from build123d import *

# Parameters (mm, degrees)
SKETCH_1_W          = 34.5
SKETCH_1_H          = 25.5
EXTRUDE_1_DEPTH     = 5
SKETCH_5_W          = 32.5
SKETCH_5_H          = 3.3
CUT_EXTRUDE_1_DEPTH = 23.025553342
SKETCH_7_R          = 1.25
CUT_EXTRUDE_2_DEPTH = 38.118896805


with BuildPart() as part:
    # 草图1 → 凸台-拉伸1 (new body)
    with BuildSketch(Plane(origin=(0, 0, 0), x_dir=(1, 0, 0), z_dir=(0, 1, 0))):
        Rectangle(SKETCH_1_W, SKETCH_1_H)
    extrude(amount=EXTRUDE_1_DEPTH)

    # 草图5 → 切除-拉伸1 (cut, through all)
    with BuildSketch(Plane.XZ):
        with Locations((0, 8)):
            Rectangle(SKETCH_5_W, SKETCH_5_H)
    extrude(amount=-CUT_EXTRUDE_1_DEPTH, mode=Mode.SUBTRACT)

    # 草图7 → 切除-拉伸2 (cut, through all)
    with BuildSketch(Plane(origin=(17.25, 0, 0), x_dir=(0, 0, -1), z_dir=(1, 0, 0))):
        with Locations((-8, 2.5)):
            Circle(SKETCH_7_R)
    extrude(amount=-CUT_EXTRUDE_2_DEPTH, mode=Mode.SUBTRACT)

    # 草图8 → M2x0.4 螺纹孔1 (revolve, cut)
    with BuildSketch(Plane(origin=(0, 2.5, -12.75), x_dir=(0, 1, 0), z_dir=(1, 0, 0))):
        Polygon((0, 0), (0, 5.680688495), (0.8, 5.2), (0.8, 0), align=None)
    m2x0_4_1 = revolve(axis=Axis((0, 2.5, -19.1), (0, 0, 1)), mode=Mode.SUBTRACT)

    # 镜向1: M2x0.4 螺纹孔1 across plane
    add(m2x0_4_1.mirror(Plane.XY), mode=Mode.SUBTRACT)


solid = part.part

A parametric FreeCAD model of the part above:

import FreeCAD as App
import Part
import Sketcher
Q = App.Units.Quantity


def add_polygon(sketch, points):
    """Adds a closed chain of lines whose ends are joined by coincident constraints."""
    first, n = sketch.GeometryCount, len(points)
    for a, b in zip(points, points[1:] + points[:1]):
        sketch.addGeometry(Part.LineSegment(App.Vector(*a, 0), App.Vector(*b, 0)), False)
    for i in range(n):
        sketch.addConstraint(Sketcher.Constraint("Coincident", first + i, 2, first + (i + 1) % n, 1))

doc = App.newDocument("Part")
body = doc.addObject("PartDesign::Body", "Body")

sketch1 = body.newObject("Sketcher::SketchObject", "Sketch")
sketch1.AttachmentSupport = (doc.getObject("XZ_Plane"), [""])
sketch1.MapMode = "FlatFace"
add_polygon(sketch1, [(-17, -13), (-17, 13), (17, 13), (17, -13)])
sketch1.addConstraint(Sketcher.Constraint("Vertical", 0))
sketch1.addConstraint(Sketcher.Constraint("Horizontal", 1))
sketch1.addConstraint(Sketcher.Constraint("Vertical", 2))
sketch1.addConstraint(Sketcher.Constraint("Horizontal", 3))
sketch1.addConstraint(Sketcher.Constraint("Symmetric", 0, 2, 2, 2, -1, 1))
sketch1.addConstraint(Sketcher.Constraint("DistanceX", 1, 1, 1, 2, Q("34.5 mm")))
sketch1.addConstraint(Sketcher.Constraint("DistanceY", 0, 1, 0, 2, Q("25.5 mm")))
pad1 = body.newObject("PartDesign::Pad", "Pad")
pad1.Profile = sketch1
pad1.Length = 5
pad1.Reversed = True

sketch2 = body.newObject("Sketcher::SketchObject", "Sketch001")
sketch2.AttachmentSupport = (doc.getObject("XZ_Plane"), [""])
sketch2.MapMode = "FlatFace"
add_polygon(sketch2, [(-16.2, 9.7), (-16.2, 6.3), (16.2, 6.3), (16.2, 9.7)])
sketch2.addConstraint(Sketcher.Constraint("Vertical", 0))
sketch2.addConstraint(Sketcher.Constraint("Horizontal", 1))
sketch2.addConstraint(Sketcher.Constraint("Vertical", 2))
sketch2.addConstraint(Sketcher.Constraint("Horizontal", 3))
sketch2.addConstraint(Sketcher.Constraint("DistanceX", 1, 1, 1, 2, Q("32.5 mm")))
sketch2.addConstraint(Sketcher.Constraint("DistanceY", 0, 2, 0, 1, Q("3.3 mm")))
sketch2.addConstraint(Sketcher.Constraint("DistanceX", 0, 2, -1, 1, Q("16.25 mm")))
sketch2.addConstraint(Sketcher.Constraint("DistanceY", -1, 1, 0, 2, Q("6.35 mm")))
pocket1 = body.newObject("PartDesign::Pocket", "Pocket")
pocket1.Profile = sketch2
pocket1.Type = "ThroughAll"

sketch3 = body.newObject("Sketcher::SketchObject", "Sketch002")
sketch3.AttachmentSupport = (doc.getObject("YZ_Plane"), [""])
sketch3.MapMode = "FlatFace"
sketch3.AttachmentOffset = App.Placement(App.Vector(0, 0, 17.25), App.Rotation())
sketch3.addGeometry(Part.Circle(App.Vector(2.5, 8, 0), App.Vector(0, 0, 1), 1.2), False)
sketch3.addConstraint(Sketcher.Constraint("Diameter", 0, Q("2.5 mm")))
sketch3.addConstraint(Sketcher.Constraint("DistanceY", -1, 1, 0, 3, Q("8 mm")))
sketch3.addConstraint(Sketcher.Constraint("DistanceX", -1, 1, 0, 3, Q("2.5 mm")))
pocket2 = body.newObject("PartDesign::Pocket", "Pocket001")
pocket2.Profile = sketch3
pocket2.Type = "ThroughAll"

sketch4 = body.newObject("Sketcher::SketchObject", "Sketch003")
sketch4.AttachmentSupport = (doc.getObject("YZ_Plane"), [""])
sketch4.MapMode = "FlatFace"
add_polygon(sketch4, [(2.5, -7.1), (2.5, -12.8), (3.3, -12.8), (3.3, -7.5)])
sketch4.addGeometry(Part.LineSegment(App.Vector(2.5, -12.8, 0), App.Vector(2.5, -7.1, 0)), True)
sketch4.addConstraint(Sketcher.Constraint("Vertical", 0))
sketch4.addConstraint(Sketcher.Constraint("Horizontal", 1))
sketch4.addConstraint(Sketcher.Constraint("Vertical", 2))
sketch4.addConstraint(Sketcher.Constraint("Vertical", 4))
sketch4.addConstraint(Sketcher.Constraint("Coincident", 4, 1, 0, 2))
sketch4.addConstraint(Sketcher.Constraint("Equal", 0, 4))
sketch4.addConstraint(Sketcher.Constraint("Angle", 3, Q("149 deg")))
sketch4.addConstraint(Sketcher.Constraint("DistanceX", 1, 1, 1, 2, Q("0.8 mm")))
sketch4.addConstraint(Sketcher.Constraint("DistanceY", 2, 1, 2, 2, Q("5.2 mm")))
sketch4.addConstraint(Sketcher.Constraint("DistanceX", -1, 1, 0, 2, Q("2.5 mm")))
sketch4.addConstraint(Sketcher.Constraint("DistanceY", 0, 2, -1, 1, Q("12.75 mm")))
groove = body.newObject("PartDesign::Groove", "Groove")
groove.Profile = sketch4
groove.ReferenceAxis = (sketch4, ["Axis0"])
groove.Angle = 360
doc.recompute()

mirrored = body.newObject("PartDesign::Mirrored", "Mirrored")
mirrored.Originals = [groove]
mirrored.MirrorPlane = (doc.getObject("XY_Plane"), [""])
body.Tip = mirrored

doc.recompute()
